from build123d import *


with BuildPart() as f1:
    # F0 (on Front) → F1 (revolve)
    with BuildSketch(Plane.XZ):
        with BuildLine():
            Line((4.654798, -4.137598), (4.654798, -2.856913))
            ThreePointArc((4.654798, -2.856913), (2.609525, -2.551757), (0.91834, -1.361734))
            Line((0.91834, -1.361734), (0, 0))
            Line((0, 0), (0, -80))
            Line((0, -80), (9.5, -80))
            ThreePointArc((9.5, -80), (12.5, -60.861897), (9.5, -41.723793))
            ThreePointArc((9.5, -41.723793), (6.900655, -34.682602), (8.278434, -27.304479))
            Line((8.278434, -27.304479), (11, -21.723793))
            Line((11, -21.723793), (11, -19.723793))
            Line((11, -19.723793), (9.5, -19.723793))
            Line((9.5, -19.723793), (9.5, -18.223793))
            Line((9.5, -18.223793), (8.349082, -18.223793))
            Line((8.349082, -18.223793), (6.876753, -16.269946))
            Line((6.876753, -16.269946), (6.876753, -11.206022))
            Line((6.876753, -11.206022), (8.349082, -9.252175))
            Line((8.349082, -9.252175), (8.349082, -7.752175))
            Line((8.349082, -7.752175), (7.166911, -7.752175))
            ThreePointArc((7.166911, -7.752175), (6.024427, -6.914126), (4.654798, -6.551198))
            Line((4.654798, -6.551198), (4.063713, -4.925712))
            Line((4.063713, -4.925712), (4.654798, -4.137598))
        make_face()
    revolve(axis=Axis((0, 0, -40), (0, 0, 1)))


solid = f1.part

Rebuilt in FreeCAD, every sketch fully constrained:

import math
import FreeCAD as App
import Part
import Sketcher

V = App.Vector
Q = App.Units.Quantity

doc = App.newDocument("Part")
body = doc.addObject("PartDesign::Body", "Body")

sketch1 = doc.addObject("Sketcher::SketchObject", "Sketch")
body.addObject(sketch1)
sketch1.AttachmentSupport = (doc.XZ_Plane, [""])
sketch1.MapMode = "FlatFace"
sketch1.addGeometry([
    Part.LineSegment(V(4.7, -4.1, 0), V(4.7, -2.9, 0)),
    Part.ArcOfCircle(Part.Circle(V(4.3, 1.6, 0), V(0, 0, 1), 4.5), math.radians(-138), math.radians(-85)),
    Part.LineSegment(V(0.9, -1.4, 0), V(0, 0, 0)),
    Part.LineSegment(V(0, 0, 0), V(0, -80, 0)),
    Part.LineSegment(V(0, -80, 0), V(9.5, -80, 0)),
    Part.ArcOfCircle(Part.Circle(V(-50, -60.9, 0), V(0, 0, 1), 62.5), math.radians(-18), math.radians(18)),
    Part.ArcOfCircle(Part.Circle(V(21, -33.5, 0), V(0, 0, 1), 14.1), math.radians(154), math.radians(216)),
    Part.LineSegment(V(8.3, -27.3, 0), V(11, -21.7, 0)),
    Part.LineSegment(V(11, -21.7, 0), V(11, -19.7, 0)),
    Part.LineSegment(V(11, -19.7, 0), V(9.5, -19.7, 0)),
    Part.LineSegment(V(9.5, -19.7, 0), V(9.5, -18.2, 0)),
    Part.LineSegment(V(9.5, -18.2, 0), V(8.3, -18.2, 0)),
    Part.LineSegment(V(8.3, -18.2, 0), V(6.9, -16.3, 0)),
    Part.LineSegment(V(6.9, -16.3, 0), V(6.9, -11.2, 0)),
    Part.LineSegment(V(6.9, -11.2, 0), V(8.3, -9.3, 0)),
    Part.LineSegment(V(8.3, -9.3, 0), V(8.3, -7.8, 0)),
    Part.LineSegment(V(8.3, -7.8, 0), V(7.2, -7.8, 0)),
    Part.ArcOfCircle(Part.Circle(V(4.4, -10.4, 0), V(0, 0, 1), 3.8), math.radians(43), math.radians(86)),
    Part.LineSegment(V(4.7, -6.6, 0), V(4.1, -4.9, 0)),
    Part.LineSegment(V(4.1, -4.9, 0), V(4.7, -4.1, 0)),
], False)
sketch1.addConstraint([
    Sketcher.Constraint("Coincident", 0, 2, 1, 2),
    Sketcher.Constraint("Coincident", 1, 1, 2, 1),
    Sketcher.Constraint("Coincident", 2, 2, 3, 1),
    Sketcher.Constraint("Coincident", 3, 2, 4, 1),
    Sketcher.Constraint("Coincident", 4, 2, 5, 1),
    Sketcher.Constraint("Coincident", 5, 2, 6, 2),
    Sketcher.Constraint("Tangent", 6, 1, 7, 1),
    Sketcher.Constraint("Coincident", 7, 2, 8, 1),
    Sketcher.Constraint("Coincident", 8, 2, 9, 1),
    Sketcher.Constraint("Coincident", 9, 2, 10, 1),
    Sketcher.Constraint("Coincident", 10, 2, 11, 1),
    Sketcher.Constraint("Coincident", 11, 2, 12, 1),
    Sketcher.Constraint("Coincident", 12, 2, 13, 1),
    Sketcher.Constraint("Coincident", 13, 2, 14, 1),
    Sketcher.Constraint("Coincident", 14, 2, 15, 1),
    Sketcher.Constraint("Coincident", 15, 2, 16, 1),
    Sketcher.Constraint("Coincident", 16, 2, 17, 1),
    Sketcher.Constraint("Coincident", 17, 2, 18, 1),
    Sketcher.Constraint("Coincident", 18, 2, 19, 1),
    Sketcher.Constraint("Coincident", 19, 2, 0, 1),
    Sketcher.Constraint("Vertical", 0),
    Sketcher.Constraint("Vertical", 3),
    Sketcher.Constraint("Horizontal", 4),
    Sketcher.Constraint("Vertical", 8),
    Sketcher.Constraint("Horizontal", 9),
    Sketcher.Constraint("Vertical", 10),
    Sketcher.Constraint("Horizontal", 11),
    Sketcher.Constraint("Vertical", 13),
    Sketcher.Constraint("Vertical", 15),
    Sketcher.Constraint("Horizontal", 16),
    Sketcher.Constraint("Coincident", 2, 2, -1, 1),
    Sketcher.Constraint("Vertical", 4, 2, 5, 2),
    Sketcher.Constraint("Vertical", 5, 2, 9, 2),
    Sketcher.Constraint("Vertical", 11, 2, 14, 2),
    Sketcher.Constraint("Vertical", 0, 2, 17, 2),
    Sketcher.Constraint("Equal", 9, 10),
    Sketcher.Constraint("Equal", 10, 15),
    Sketcher.Constraint("Equal", 12, 14),
    Sketcher.Constraint("DistanceY", 3, 2, 3, 1, Q("80 mm")),
    Sketcher.Constraint("DistanceY", 8, 1, 8, 2, Q("2 mm")),
    Sketcher.Constraint("Angle", 12, Q("126.999994 deg")),
    Sketcher.Constraint("DistanceX", 4, 1, 4, 2, Q("9.5 mm")),
    Sketcher.Constraint("DistanceX", 9, 2, 9, 1, Q("1.5 mm")),
    Sketcher.Constraint("DistanceY", 5, 2, 7, 2, Q("20 mm")),
    Sketcher.Constraint("Radius", 5, Q("62.544501 mm")),
    Sketcher.Constraint("Radius", 6, Q("14.114192 mm")),
    Sketcher.Constraint("Radius", 17, Q("3.81219 mm")),
    Sketcher.Constraint("Radius", 1, Q("4.486766 mm")),
    Sketcher.Constraint("DistanceX", 11, 2, 11, 1, Q("1.150918 mm")),
    Sketcher.Constraint("DistanceX", 16, 2, 16, 1, Q("1.182171 mm")),
    Sketcher.Constraint("DistanceX", 5, 3, -1, 1, Q("50.044501 mm")),
    Sketcher.Constraint("DistanceX", -1, 1, 0, 2, Q("4.654798 mm")),
    Sketcher.Constraint("DistanceX", 1, 1, 1, 3, Q("3.358101 mm")),
    Sketcher.Constraint("DistanceY", 18, 2, 0, 2, Q("2.068799 mm")),
    Sketcher.Constraint("DistanceY", 17, 2, 19, 2, Q("2.4136 mm")),
    Sketcher.Constraint("Distance", 12, Q("2.446481 mm")),
    Sketcher.Constraint("Distance", 18, Q("1.72962 mm")),
    Sketcher.Constraint("DistanceY", 0, 1, 0, 2, Q("1.280685 mm")),
    Sketcher.Constraint("DistanceY", 13, 1, 13, 2, Q("5.063924 mm")),
    Sketcher.Constraint("DistanceX", -1, 1, 1, 3, Q("4.276441 mm")),
    Sketcher.Constraint("DistanceY", -1, 1, 1, 3, Q("1.613871 mm")),
    Sketcher.Constraint("DistanceX", -1, 1, 6, 3, Q("20.964469 mm")),
])
revolution = doc.addObject("PartDesign::Revolution", "Revolution")
body.addObject(revolution)
revolution.Profile = sketch1
revolution.ReferenceAxis = (sketch1, ["V_Axis"])
revolution.Angle = 360

doc.recompute()
